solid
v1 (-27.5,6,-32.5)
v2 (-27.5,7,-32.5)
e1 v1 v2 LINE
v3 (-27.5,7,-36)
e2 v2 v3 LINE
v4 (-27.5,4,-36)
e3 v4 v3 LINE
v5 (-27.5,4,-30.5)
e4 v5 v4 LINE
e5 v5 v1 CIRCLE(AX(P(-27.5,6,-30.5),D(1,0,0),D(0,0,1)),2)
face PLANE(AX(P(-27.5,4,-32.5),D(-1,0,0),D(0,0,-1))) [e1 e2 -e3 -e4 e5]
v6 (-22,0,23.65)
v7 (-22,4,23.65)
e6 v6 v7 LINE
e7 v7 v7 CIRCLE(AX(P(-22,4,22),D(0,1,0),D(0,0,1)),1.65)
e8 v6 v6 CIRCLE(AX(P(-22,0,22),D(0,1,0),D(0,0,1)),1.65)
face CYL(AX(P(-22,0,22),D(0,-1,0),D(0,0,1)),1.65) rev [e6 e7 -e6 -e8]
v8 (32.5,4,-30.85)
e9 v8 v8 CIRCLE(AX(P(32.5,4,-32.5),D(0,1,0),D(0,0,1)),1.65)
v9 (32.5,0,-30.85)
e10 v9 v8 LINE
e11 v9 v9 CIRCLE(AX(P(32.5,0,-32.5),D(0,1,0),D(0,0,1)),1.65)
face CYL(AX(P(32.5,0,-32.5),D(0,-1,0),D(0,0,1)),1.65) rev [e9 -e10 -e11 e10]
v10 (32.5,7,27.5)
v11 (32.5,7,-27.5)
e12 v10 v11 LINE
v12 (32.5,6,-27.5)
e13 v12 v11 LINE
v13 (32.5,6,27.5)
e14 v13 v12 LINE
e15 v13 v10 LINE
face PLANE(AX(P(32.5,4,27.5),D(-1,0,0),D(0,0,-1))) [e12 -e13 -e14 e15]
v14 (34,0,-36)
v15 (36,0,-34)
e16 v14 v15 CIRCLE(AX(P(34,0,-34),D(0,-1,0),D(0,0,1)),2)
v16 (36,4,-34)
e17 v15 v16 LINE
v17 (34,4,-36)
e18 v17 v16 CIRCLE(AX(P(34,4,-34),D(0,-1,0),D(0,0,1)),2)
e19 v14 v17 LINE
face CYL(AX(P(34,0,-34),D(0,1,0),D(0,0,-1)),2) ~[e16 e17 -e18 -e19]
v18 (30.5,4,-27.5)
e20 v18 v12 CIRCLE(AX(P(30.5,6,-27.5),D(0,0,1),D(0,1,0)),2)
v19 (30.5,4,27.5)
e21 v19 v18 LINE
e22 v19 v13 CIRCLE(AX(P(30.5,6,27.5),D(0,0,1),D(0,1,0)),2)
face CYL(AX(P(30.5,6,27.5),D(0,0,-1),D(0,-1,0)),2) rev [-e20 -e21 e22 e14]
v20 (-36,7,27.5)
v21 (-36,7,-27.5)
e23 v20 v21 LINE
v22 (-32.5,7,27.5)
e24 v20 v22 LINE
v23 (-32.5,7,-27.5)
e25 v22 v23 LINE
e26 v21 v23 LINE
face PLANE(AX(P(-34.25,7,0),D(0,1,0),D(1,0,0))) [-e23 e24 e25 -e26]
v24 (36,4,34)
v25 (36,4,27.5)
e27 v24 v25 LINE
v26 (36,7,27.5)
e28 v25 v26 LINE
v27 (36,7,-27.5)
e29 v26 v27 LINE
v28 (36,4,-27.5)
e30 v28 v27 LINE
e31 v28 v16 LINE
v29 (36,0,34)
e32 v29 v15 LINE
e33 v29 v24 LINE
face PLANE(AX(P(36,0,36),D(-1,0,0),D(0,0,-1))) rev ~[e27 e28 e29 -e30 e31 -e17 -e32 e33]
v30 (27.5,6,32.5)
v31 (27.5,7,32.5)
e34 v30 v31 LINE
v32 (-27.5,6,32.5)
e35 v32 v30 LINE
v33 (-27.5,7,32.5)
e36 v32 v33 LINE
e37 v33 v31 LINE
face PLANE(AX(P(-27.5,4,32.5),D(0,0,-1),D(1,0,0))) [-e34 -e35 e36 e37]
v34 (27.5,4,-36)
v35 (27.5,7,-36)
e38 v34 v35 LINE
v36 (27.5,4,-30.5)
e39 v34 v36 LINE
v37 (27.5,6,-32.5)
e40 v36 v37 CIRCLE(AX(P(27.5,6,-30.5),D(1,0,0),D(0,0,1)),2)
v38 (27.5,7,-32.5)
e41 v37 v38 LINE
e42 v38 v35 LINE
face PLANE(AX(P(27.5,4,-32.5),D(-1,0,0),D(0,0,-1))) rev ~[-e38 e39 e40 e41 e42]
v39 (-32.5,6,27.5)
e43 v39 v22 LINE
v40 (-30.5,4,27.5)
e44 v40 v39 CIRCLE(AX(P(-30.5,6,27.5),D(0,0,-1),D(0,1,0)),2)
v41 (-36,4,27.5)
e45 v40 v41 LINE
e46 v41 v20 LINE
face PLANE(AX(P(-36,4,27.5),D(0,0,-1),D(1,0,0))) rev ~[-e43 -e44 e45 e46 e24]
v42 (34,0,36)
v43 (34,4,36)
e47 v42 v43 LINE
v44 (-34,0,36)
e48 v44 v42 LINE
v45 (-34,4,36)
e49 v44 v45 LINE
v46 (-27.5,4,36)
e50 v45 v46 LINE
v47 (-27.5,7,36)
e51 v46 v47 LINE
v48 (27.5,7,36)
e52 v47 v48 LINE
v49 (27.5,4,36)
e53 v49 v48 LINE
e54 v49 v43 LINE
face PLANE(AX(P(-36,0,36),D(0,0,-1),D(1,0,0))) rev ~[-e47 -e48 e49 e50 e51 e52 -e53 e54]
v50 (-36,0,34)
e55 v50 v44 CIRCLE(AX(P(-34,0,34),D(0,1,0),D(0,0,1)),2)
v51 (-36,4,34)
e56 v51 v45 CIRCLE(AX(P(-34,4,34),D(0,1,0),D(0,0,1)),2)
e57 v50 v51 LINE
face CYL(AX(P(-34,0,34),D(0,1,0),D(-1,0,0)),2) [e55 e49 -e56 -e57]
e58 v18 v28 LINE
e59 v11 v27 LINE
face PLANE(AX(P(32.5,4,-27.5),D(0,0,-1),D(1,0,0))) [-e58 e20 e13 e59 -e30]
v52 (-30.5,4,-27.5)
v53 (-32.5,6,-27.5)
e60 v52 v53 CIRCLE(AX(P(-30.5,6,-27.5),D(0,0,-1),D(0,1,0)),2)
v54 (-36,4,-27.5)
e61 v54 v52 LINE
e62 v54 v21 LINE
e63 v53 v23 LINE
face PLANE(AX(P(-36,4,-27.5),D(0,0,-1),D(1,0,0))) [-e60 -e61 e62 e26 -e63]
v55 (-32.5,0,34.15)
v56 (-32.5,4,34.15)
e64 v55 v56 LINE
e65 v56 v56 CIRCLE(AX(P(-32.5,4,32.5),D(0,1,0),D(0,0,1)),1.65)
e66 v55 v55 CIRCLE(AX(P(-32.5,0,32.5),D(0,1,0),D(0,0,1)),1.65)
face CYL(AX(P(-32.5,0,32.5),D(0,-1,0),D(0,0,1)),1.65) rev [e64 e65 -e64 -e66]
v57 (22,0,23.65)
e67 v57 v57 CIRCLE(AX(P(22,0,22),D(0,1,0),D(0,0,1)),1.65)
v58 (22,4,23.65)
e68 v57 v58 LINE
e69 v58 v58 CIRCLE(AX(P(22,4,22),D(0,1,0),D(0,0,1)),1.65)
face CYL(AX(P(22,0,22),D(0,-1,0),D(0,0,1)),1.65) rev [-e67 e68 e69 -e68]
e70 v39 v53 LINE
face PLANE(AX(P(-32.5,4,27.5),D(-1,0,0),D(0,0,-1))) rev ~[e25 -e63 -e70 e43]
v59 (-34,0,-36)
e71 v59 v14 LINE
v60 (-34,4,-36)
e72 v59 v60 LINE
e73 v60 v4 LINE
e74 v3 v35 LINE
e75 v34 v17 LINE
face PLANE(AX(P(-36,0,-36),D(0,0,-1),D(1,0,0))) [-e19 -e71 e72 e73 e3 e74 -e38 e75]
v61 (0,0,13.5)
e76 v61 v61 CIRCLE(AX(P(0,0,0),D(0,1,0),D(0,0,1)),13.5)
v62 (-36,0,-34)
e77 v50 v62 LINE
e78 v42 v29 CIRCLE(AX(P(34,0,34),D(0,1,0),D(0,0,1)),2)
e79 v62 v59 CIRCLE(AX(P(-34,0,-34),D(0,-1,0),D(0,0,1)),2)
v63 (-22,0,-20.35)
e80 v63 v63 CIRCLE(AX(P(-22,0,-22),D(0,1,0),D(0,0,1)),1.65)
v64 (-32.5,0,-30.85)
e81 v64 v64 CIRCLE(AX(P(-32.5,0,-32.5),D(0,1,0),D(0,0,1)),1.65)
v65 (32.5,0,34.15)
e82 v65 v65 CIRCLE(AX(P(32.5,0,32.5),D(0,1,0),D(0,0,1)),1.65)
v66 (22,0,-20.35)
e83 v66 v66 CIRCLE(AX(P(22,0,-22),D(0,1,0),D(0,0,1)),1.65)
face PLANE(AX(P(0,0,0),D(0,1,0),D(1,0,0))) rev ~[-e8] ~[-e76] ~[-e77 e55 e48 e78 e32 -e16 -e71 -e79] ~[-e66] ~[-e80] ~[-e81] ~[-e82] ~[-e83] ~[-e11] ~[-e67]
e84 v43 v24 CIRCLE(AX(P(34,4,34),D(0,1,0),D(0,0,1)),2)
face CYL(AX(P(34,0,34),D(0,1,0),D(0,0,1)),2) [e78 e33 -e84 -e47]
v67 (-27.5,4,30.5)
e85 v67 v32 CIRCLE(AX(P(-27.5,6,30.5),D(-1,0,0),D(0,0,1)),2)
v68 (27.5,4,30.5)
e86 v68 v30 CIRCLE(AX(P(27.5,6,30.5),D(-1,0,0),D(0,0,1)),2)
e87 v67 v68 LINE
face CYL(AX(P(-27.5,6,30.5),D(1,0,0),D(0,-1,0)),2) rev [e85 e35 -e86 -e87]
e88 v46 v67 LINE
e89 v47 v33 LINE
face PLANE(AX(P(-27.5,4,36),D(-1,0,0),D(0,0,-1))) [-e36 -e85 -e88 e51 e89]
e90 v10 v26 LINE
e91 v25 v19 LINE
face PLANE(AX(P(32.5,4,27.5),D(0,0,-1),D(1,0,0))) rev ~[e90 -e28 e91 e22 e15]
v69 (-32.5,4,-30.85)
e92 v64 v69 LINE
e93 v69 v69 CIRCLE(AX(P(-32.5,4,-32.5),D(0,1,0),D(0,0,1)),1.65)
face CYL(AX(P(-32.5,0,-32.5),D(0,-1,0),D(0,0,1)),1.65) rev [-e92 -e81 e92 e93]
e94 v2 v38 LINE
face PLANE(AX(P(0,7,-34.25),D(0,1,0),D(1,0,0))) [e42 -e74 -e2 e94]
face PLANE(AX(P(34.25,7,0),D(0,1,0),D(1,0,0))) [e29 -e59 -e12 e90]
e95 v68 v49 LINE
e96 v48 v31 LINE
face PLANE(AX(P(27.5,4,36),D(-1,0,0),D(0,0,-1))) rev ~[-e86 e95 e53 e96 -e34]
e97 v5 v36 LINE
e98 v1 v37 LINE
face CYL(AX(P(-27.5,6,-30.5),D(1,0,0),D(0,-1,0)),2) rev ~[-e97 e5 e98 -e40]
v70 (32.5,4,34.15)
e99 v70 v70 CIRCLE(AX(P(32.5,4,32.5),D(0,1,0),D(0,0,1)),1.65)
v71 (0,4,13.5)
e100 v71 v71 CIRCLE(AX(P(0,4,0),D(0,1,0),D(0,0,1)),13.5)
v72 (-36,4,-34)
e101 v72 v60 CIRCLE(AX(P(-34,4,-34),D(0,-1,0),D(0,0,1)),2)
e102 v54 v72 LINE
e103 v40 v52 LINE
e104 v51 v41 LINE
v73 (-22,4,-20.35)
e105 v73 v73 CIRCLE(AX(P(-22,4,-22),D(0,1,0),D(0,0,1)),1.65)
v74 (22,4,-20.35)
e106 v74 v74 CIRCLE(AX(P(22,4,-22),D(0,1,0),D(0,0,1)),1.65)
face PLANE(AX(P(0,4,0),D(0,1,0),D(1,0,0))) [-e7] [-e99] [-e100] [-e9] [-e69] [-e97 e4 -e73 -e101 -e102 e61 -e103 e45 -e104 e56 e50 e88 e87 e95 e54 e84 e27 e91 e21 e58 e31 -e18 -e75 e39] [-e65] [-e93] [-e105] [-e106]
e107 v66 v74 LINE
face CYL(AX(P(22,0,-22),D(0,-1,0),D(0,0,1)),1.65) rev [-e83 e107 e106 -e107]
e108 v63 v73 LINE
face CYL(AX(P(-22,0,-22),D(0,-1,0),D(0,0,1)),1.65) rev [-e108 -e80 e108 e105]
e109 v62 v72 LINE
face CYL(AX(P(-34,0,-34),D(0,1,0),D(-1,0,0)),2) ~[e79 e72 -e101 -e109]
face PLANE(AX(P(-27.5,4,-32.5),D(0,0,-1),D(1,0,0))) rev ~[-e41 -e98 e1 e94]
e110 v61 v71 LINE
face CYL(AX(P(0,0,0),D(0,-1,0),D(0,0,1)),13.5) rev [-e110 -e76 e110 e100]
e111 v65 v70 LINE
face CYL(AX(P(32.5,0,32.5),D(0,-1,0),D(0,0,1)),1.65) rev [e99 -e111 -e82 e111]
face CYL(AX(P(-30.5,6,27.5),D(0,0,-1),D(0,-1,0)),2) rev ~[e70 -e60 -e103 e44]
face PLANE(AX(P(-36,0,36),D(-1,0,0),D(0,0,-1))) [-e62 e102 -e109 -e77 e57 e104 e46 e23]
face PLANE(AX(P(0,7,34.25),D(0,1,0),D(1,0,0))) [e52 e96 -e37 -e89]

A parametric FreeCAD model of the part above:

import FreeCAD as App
import Part
import Sketcher
Q = App.Units.Quantity


def edges_at(feature, points):
    """Names of the edges that pass closest to the given points."""
    edges = feature.Shape.Edges
    near = lambda p: min(range(len(edges)), key=lambda i: edges[i].distToShape(Part.Vertex(*p))[0])
    return sorted({f"Edge{near(p) + 1}" for p in points})

doc = App.newDocument("Part")
body = doc.addObject("PartDesign::Body", "Body")

# Sketch on XZ plane
sketch1 = body.newObject("Sketcher::SketchObject", "Sketch")
sketch1.AttachmentSupport = (doc.getObject("XZ_Plane"), [""])
sketch1.MapMode = "FlatFace"
sketch1.addGeometry([
    Part.LineSegment(App.Vector(-36, -36, 0), App.Vector(-36, 36, 0)),  # 0
    Part.LineSegment(App.Vector(-36, 36, 0), App.Vector(36, 36, 0)),  # 1
    Part.LineSegment(App.Vector(36, 36, 0), App.Vector(36, -36, 0)),  # 2
    Part.LineSegment(App.Vector(36, -36, 0), App.Vector(-36, -36, 0)),  # 3
    Part.Circle(App.Vector(0, 0, 0), App.Vector(0, 0, 1), 14),  # 4
], False)
sketch1.addConstraint([
    Sketcher.Constraint("Coincident", 0, 2, 1, 1),
    Sketcher.Constraint("Coincident", 1, 2, 2, 1),
    Sketcher.Constraint("Coincident", 2, 2, 3, 1),
    Sketcher.Constraint("Coincident", 3, 2, 0, 1),
    Sketcher.Constraint("Vertical", 0),
    Sketcher.Constraint("Horizontal", 1),
    Sketcher.Constraint("Vertical", 2),
    Sketcher.Constraint("Horizontal", 3),
    Sketcher.Constraint("Coincident", 4, 3, -1, 1),
    Sketcher.Constraint("Symmetric", 0, 2, 2, 2, -1, 1),
    Sketcher.Constraint("Equal", 3, 0),
    Sketcher.Constraint("Diameter", 4, Q("27 mm")),
    Sketcher.Constraint("DistanceX", 1, 1, 1, 2, Q("72 mm")),
])
pad1 = body.newObject("PartDesign::Pad", "Pad")
pad1.Profile = sketch1
pad1.Length = 4
pad1.Reversed = True

# Sketch on XZ plane
sketch2 = body.newObject("Sketcher::SketchObject", "Sketch001")
sketch2.AttachmentSupport = (doc.getObject("XZ_Plane"), [""])
sketch2.MapMode = "FlatFace"
sketch2.addGeometry([
    Part.Circle(App.Vector(-22, -22, 0), App.Vector(0, 0, 1), 1.6),  # 0
    Part.Circle(App.Vector(22, -22, 0), App.Vector(0, 0, 1), 1.6),  # 1
    Part.Circle(App.Vector(22, 22, 0), App.Vector(0, 0, 1), 1.6),  # 2
    Part.Circle(App.Vector(-22, 22, 0), App.Vector(0, 0, 1), 1.6),  # 3
    Part.Circle(App.Vector(-32.5, -32.5, 0), App.Vector(0, 0, 1), 1.6),  # 4
    Part.Circle(App.Vector(32.5, -32.5, 0), App.Vector(0, 0, 1), 1.6),  # 5
    Part.Circle(App.Vector(32.5, 32.5, 0), App.Vector(0, 0, 1), 1.6),  # 6
    Part.Circle(App.Vector(-32.5, 32.5, 0), App.Vector(0, 0, 1), 1.6),  # 7
], False)
sketch2.addConstraint([
    Sketcher.Constraint("Equal", 0, 1),
    Sketcher.Constraint("Equal", 1, 2),
    Sketcher.Constraint("Equal", 2, 3),
    Sketcher.Constraint("Equal", 3, 4),
    Sketcher.Constraint("Equal", 4, 5),
    Sketcher.Constraint("Equal", 5, 6),
    Sketcher.Constraint("Equal", 6, 7),
    Sketcher.Constraint("Symmetric", 0, 3, 2, 3, -1, 1),
    Sketcher.Constraint("Symmetric", 1, 3, 3, 3, -1, 1),
    Sketcher.Constraint("Symmetric", 4, 3, 6, 3, -1, 1),
    Sketcher.Constraint("Symmetric", 5, 3, 7, 3, -1, 1),
    Sketcher.Constraint("Symmetric", 0, 3, 1, 3, -2),
    Sketcher.Constraint("Symmetric", 4, 3, 5, 3, -2),
    Sketcher.Constraint("Diameter", 0, Q("3.3 mm")),
    Sketcher.Constraint("DistanceX", 0, 3, -1, 1, Q("22 mm")),
    Sketcher.Constraint("DistanceY", 0, 3, -1, 1, Q("22 mm")),
    Sketcher.Constraint("DistanceX", 4, 3, 5, 3, Q("65 mm")),
    Sketcher.Constraint("DistanceY", 5, 3, 6, 3, Q("65 mm")),
])
pocket1 = body.newObject("PartDesign::Pocket", "Pocket")
pocket1.Profile = sketch2
pocket1.Length = 4
doc.recompute()

fillet = body.newObject("PartDesign::Fillet", "Fillet")
fillet.Base = (pocket1, edges_at(pocket1, [
    (36, 2, 36),
    (-36, 2, 36),
    (-36, 2, -36),
    (36, 2, -36),
]))
fillet.Radius = 2

# Sketch on XZ plane
sketch3 = body.newObject("Sketcher::SketchObject", "Sketch002")
sketch3.AttachmentSupport = (doc.getObject("XZ_Plane"), [""])
sketch3.MapMode = "FlatFace"
sketch3.AttachmentOffset = App.Placement(App.Vector(0, 0, -4), App.Rotation())
sketch3.addGeometry([
    Part.LineSegment(App.Vector(-36, -27.5, 0), App.Vector(-36, 27.5, 0)),  # 0
    Part.LineSegment(App.Vector(-36, 27.5, 0), App.Vector(-32.5, 27.5, 0)),  # 1
    Part.LineSegment(App.Vector(-32.5, 27.5, 0), App.Vector(-32.5, -27.5, 0)),  # 2
    Part.LineSegment(App.Vector(-32.5, -27.5, 0), App.Vector(-36, -27.5, 0)),  # 3
    Part.LineSegment(App.Vector(-27.5, -36, 0), App.Vector(-27.5, -32.5, 0)),  # 4
    Part.LineSegment(App.Vector(-27.5, -32.5, 0), App.Vector(27.5, -32.5, 0)),  # 5
    Part.LineSegment(App.Vector(27.5, -32.5, 0), App.Vector(27.5, -36, 0)),  # 6
    Part.LineSegment(App.Vector(27.5, -36, 0), App.Vector(-27.5, -36, 0)),  # 7
    Part.LineSegment(App.Vector(32.5, -27.5, 0), App.Vector(32.5, 27.5, 0)),  # 8
    Part.LineSegment(App.Vector(32.5, 27.5, 0), App.Vector(36, 27.5, 0)),  # 9
    Part.LineSegment(App.Vector(36, 27.5, 0), App.Vector(36, -27.5, 0)),  # 10
    Part.LineSegment(App.Vector(36, -27.5, 0), App.Vector(32.5, -27.5, 0)),  # 11
    Part.LineSegment(App.Vector(-27.5, 32.5, 0), App.Vector(-27.5, 36, 0)),  # 12
    Part.LineSegment(App.Vector(-27.5, 36, 0), App.Vector(27.5, 36, 0)),  # 13
    Part.LineSegment(App.Vector(27.5, 36, 0), App.Vector(27.5, 32.5, 0)),  # 14
    Part.LineSegment(App.Vector(27.5, 32.5, 0), App.Vector(-27.5, 32.5, 0)),  # 15
], False)
sketch3.addConstraint([
    Sketcher.Constraint("Coincident", 0, 2, 1, 1),
    Sketcher.Constraint("Coincident", 1, 2, 2, 1),
    Sketcher.Constraint("Coincident", 2, 2, 3, 1),
    Sketcher.Constraint("Coincident", 3, 2, 0, 1),
    Sketcher.Constraint("Coincident", 4, 2, 5, 1),
    Sketcher.Constraint("Coincident", 5, 2, 6, 1),
    Sketcher.Constraint("Coincident", 6, 2, 7, 1),
    Sketcher.Constraint("Coincident", 7, 2, 4, 1),
    Sketcher.Constraint("Coincident", 8, 2, 9, 1),
    Sketcher.Constraint("Coincident", 9, 2, 10, 1),
    Sketcher.Constraint("Coincident", 10, 2, 11, 1),
    Sketcher.Constraint("Coincident", 11, 2, 8, 1),
    Sketcher.Constraint("Coincident", 12, 2, 13, 1),
    Sketcher.Constraint("Coincident", 13, 2, 14, 1),
    Sketcher.Constraint("Coincident", 14, 2, 15, 1),
    Sketcher.Constraint("Coincident", 15, 2, 12, 1),
    Sketcher.Constraint("Vertical", 0),
    Sketcher.Constraint("Horizontal", 1),
    Sketcher.Constraint("Vertical", 2),
    Sketcher.Constraint("Horizontal", 3),
    Sketcher.Constraint("Vertical", 4),
    Sketcher.Constraint("Horizontal", 5),
    Sketcher.Constraint("Vertical", 6),
    Sketcher.Constraint("Horizontal", 7),
    Sketcher.Constraint("Vertical", 8),
    Sketcher.Constraint("Horizontal", 9),
    Sketcher.Constraint("Vertical", 10),
    Sketcher.Constraint("Horizontal", 11),
    Sketcher.Constraint("Vertical", 12),
    Sketcher.Constraint("Horizontal", 13),
    Sketcher.Constraint("Vertical", 14),
    Sketcher.Constraint("Horizontal", 15),
    Sketcher.Constraint("Symmetric", 2, 2, 8, 2, -1, 1),
    Sketcher.Constraint("Symmetric", 0, 2, 10, 2, -1, 1),
    Sketcher.Constraint("Symmetric", 6, 2, 12, 2, -1, 1),
    Sketcher.Constraint("Symmetric", 4, 2, 14, 2, -1, 1),
    Sketcher.Constraint("Horizontal", 1, 2, 8, 2),
    Sketcher.Constraint("Vertical", 7, 2, 12, 2),
    Sketcher.Constraint("Equal", 15, 0),
    Sketcher.Constraint("Equal", 11, 4),
    Sketcher.Constraint("DistanceX", 5, 1, 5, 2, Q("55 mm")),
    Sketcher.Constraint("DistanceX", 1, 1, 1, 2, Q("3.5 mm")),
    Sketcher.Constraint("DistanceX", 0, 2, -1, 1, Q("36 mm")),
    Sketcher.Constraint("DistanceY", 6, 2, -1, 1, Q("36 mm")),
])
pad2 = body.newObject("PartDesign::Pad", "Pad001")
pad2.Profile = sketch3
pad2.Length = 3
pad2.Reversed = True
doc.recompute()

fillet2 = body.newObject("PartDesign::Fillet", "Fillet001")
fillet2.Base = (pad2, edges_at(pad2, [
    (32.5, 4, 0),
    (0, 4, 32.5),
    (-32.5, 4, 0),
    (0, 4, -32.5),
]))
fillet2.Radius = 2

doc.recompute()
